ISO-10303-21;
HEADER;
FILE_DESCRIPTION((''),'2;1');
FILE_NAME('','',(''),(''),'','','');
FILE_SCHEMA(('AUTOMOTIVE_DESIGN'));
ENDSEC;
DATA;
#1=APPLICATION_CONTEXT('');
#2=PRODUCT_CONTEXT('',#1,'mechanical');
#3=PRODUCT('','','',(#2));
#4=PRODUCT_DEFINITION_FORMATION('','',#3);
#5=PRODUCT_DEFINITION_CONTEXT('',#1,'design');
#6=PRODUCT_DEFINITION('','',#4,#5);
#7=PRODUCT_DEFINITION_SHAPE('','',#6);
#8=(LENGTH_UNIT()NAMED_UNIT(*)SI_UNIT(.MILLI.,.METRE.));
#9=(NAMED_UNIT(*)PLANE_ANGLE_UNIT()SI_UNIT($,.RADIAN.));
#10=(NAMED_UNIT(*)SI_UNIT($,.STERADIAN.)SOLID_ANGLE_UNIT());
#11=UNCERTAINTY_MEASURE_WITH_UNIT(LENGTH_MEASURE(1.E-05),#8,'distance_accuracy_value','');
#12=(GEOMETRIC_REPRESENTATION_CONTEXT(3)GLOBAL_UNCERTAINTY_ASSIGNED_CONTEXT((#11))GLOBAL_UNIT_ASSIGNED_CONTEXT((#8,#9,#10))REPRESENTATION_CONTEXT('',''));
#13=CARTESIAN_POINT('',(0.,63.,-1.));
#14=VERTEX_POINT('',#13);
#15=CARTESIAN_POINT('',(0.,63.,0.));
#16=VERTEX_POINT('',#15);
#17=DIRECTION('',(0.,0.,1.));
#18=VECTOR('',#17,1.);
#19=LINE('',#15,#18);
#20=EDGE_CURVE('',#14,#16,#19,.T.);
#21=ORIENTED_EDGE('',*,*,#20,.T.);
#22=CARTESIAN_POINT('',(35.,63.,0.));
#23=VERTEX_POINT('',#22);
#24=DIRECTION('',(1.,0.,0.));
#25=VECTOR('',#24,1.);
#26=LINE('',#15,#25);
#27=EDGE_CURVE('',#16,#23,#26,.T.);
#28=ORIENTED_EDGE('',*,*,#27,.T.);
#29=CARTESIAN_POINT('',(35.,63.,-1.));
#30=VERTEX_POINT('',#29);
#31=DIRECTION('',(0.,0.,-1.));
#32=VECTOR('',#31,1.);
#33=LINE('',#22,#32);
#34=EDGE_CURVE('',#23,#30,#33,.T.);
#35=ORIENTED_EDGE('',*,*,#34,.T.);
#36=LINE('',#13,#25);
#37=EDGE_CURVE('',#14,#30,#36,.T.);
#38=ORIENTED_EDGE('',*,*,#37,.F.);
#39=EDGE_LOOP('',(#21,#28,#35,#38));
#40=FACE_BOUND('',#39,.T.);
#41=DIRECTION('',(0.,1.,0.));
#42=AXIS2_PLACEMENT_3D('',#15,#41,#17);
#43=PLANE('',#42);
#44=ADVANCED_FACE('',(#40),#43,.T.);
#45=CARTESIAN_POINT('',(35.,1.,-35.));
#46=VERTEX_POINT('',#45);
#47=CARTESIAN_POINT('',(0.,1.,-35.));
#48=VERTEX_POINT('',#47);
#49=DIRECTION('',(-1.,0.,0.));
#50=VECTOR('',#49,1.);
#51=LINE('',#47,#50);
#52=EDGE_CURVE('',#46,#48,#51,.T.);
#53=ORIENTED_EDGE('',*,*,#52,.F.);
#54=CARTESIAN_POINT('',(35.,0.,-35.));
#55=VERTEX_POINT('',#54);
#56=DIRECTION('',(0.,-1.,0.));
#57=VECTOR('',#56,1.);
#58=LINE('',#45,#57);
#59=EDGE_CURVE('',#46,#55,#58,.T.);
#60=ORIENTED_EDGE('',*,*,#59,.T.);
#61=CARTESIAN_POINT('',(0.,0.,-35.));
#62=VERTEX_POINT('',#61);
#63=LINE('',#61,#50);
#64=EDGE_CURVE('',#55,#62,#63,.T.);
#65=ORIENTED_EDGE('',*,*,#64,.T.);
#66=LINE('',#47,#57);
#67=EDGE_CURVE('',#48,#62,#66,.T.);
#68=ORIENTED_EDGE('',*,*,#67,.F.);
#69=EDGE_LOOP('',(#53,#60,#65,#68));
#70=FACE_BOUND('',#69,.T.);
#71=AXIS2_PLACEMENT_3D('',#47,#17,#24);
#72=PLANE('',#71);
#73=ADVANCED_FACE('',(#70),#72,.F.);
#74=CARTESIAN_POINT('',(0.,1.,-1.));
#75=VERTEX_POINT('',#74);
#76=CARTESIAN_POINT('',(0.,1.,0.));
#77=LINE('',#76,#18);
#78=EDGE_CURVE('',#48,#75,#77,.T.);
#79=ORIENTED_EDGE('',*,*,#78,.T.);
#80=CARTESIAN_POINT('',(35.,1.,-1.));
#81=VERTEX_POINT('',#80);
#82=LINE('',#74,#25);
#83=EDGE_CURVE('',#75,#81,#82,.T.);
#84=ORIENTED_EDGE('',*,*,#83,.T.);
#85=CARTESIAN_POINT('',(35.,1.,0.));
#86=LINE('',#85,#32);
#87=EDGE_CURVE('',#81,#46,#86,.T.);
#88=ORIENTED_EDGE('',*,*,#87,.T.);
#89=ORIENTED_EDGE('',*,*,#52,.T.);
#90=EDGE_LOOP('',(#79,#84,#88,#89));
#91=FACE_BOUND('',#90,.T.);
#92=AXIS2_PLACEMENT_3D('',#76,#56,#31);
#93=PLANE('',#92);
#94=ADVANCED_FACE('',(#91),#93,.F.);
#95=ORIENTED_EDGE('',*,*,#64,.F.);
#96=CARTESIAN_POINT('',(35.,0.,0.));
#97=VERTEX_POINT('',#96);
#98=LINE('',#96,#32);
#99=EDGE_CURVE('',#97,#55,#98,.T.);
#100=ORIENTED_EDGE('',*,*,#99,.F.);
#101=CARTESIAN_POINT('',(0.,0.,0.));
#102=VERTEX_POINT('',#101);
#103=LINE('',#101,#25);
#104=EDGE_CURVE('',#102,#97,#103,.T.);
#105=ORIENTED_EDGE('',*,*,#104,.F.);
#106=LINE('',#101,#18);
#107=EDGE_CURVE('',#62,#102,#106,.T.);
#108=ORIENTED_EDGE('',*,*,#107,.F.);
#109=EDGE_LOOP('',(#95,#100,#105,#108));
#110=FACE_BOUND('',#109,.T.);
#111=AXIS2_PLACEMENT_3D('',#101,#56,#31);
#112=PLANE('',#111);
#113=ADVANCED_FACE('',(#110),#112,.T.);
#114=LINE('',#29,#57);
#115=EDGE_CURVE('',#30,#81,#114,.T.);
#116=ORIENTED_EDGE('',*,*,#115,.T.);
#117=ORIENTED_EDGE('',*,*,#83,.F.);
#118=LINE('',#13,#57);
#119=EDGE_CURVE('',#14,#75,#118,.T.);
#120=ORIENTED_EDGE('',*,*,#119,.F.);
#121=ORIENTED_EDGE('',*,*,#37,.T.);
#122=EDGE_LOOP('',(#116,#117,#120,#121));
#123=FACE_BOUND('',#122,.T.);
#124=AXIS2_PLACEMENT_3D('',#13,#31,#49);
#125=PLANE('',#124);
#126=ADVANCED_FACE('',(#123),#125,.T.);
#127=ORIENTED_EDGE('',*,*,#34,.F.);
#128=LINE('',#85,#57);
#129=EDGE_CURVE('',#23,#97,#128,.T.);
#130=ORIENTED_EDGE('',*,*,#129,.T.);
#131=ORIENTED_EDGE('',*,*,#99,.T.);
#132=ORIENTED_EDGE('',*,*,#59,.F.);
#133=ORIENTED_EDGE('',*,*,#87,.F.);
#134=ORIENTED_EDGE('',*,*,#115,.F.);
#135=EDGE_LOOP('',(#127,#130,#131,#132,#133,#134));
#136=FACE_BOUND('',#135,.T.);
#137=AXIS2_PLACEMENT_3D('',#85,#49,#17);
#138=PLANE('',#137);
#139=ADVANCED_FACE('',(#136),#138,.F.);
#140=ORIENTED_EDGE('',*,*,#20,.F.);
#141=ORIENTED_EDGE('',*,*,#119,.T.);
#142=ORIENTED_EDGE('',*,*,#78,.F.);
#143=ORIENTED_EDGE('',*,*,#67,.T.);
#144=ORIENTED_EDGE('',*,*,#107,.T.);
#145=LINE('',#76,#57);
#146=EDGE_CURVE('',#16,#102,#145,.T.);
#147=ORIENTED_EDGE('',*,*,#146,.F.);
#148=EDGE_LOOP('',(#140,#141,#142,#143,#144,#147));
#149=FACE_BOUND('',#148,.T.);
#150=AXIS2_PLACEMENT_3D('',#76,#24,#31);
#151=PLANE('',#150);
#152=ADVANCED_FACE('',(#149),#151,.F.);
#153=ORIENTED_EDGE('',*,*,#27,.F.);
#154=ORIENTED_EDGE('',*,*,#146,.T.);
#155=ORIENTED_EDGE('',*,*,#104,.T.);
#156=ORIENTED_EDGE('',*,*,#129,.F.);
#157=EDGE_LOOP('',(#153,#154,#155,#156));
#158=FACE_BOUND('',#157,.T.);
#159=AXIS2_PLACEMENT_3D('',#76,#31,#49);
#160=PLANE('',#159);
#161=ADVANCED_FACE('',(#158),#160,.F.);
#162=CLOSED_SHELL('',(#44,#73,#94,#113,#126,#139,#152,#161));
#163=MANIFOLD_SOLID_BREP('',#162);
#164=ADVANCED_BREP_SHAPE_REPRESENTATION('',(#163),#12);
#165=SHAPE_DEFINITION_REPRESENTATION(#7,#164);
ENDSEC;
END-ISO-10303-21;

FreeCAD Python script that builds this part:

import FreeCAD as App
import Part
import Sketcher

V = App.Vector
Q = App.Units.Quantity

doc = App.newDocument("Part")
body = doc.addObject("PartDesign::Body", "Body")

# Sketch on XZ plane
sketch1 = body.newObject("Sketcher::SketchObject", "Sketch")
sketch1.AttachmentSupport = (doc.getObject("XZ_Plane"), [""])
sketch1.MapMode = "FlatFace"
sketch1.addGeometry([
    Part.LineSegment(V(0, -35, 0), V(0, 0, 0)),
    Part.LineSegment(V(0, 0, 0), V(35, 0, 0)),
    Part.LineSegment(V(35, 0, 0), V(35, -35, 0)),
    Part.LineSegment(V(35, -35, 0), V(0, -35, 0)),
], False)
sketch1.addConstraint([
    Sketcher.Constraint("Coincident", 0, 2, 1, 1),
    Sketcher.Constraint("Coincident", 1, 2, 2, 1),
    Sketcher.Constraint("Coincident", 2, 2, 3, 1),
    Sketcher.Constraint("Coincident", 3, 2, 0, 1),
    Sketcher.Constraint("Vertical", 0),
    Sketcher.Constraint("Horizontal", 1),
    Sketcher.Constraint("Vertical", 2),
    Sketcher.Constraint("Horizontal", 3),
    Sketcher.Constraint("Coincident", 0, 2, -1, 1),
    Sketcher.Constraint("Equal", 3, 0),
    Sketcher.Constraint("DistanceX", 1, 1, 1, 2, Q("35 mm")),
])
pad1 = body.newObject("PartDesign::Pad", "Pad")
pad1.Profile = sketch1
pad1.Length = 1
pad1.Reversed = True

# Sketch on XZ plane
sketch2 = body.newObject("Sketcher::SketchObject", "Sketch001")
sketch2.AttachmentSupport = (doc.getObject("XZ_Plane"), [""])
sketch2.MapMode = "FlatFace"
sketch2.AttachmentOffset = App.Placement(V(0, 0, -1), App.Rotation())
sketch2.addGeometry([
    Part.LineSegment(V(0, -1, 0), V(0, 0, 0)),
    Part.LineSegment(V(0, 0, 0), V(35, 0, 0)),
    Part.LineSegment(V(35, 0, 0), V(35, -1, 0)),
    Part.LineSegment(V(35, -1, 0), V(0, -1, 0)),
], False)
sketch2.addConstraint([
    Sketcher.Constraint("Coincident", 0, 2, 1, 1),
    Sketcher.Constraint("Coincident", 1, 2, 2, 1),
    Sketcher.Constraint("Coincident", 2, 2, 3, 1),
    Sketcher.Constraint("Coincident", 3, 2, 0, 1),
    Sketcher.Constraint("Vertical", 0),
    Sketcher.Constraint("Horizontal", 1),
    Sketcher.Constraint("Vertical", 2),
    Sketcher.Constraint("Horizontal", 3),
    Sketcher.Constraint("Coincident", 0, 2, -1, 1),
    Sketcher.Constraint("DistanceX", 1, 1, 1, 2, Q("35 mm")),
    Sketcher.Constraint("DistanceY", 0, 1, 0, 2, Q("1 mm")),
])
pad2 = body.newObject("PartDesign::Pad", "Pad001")
pad2.Profile = sketch2
pad2.Length = 62
pad2.Reversed = True

doc.recompute()
